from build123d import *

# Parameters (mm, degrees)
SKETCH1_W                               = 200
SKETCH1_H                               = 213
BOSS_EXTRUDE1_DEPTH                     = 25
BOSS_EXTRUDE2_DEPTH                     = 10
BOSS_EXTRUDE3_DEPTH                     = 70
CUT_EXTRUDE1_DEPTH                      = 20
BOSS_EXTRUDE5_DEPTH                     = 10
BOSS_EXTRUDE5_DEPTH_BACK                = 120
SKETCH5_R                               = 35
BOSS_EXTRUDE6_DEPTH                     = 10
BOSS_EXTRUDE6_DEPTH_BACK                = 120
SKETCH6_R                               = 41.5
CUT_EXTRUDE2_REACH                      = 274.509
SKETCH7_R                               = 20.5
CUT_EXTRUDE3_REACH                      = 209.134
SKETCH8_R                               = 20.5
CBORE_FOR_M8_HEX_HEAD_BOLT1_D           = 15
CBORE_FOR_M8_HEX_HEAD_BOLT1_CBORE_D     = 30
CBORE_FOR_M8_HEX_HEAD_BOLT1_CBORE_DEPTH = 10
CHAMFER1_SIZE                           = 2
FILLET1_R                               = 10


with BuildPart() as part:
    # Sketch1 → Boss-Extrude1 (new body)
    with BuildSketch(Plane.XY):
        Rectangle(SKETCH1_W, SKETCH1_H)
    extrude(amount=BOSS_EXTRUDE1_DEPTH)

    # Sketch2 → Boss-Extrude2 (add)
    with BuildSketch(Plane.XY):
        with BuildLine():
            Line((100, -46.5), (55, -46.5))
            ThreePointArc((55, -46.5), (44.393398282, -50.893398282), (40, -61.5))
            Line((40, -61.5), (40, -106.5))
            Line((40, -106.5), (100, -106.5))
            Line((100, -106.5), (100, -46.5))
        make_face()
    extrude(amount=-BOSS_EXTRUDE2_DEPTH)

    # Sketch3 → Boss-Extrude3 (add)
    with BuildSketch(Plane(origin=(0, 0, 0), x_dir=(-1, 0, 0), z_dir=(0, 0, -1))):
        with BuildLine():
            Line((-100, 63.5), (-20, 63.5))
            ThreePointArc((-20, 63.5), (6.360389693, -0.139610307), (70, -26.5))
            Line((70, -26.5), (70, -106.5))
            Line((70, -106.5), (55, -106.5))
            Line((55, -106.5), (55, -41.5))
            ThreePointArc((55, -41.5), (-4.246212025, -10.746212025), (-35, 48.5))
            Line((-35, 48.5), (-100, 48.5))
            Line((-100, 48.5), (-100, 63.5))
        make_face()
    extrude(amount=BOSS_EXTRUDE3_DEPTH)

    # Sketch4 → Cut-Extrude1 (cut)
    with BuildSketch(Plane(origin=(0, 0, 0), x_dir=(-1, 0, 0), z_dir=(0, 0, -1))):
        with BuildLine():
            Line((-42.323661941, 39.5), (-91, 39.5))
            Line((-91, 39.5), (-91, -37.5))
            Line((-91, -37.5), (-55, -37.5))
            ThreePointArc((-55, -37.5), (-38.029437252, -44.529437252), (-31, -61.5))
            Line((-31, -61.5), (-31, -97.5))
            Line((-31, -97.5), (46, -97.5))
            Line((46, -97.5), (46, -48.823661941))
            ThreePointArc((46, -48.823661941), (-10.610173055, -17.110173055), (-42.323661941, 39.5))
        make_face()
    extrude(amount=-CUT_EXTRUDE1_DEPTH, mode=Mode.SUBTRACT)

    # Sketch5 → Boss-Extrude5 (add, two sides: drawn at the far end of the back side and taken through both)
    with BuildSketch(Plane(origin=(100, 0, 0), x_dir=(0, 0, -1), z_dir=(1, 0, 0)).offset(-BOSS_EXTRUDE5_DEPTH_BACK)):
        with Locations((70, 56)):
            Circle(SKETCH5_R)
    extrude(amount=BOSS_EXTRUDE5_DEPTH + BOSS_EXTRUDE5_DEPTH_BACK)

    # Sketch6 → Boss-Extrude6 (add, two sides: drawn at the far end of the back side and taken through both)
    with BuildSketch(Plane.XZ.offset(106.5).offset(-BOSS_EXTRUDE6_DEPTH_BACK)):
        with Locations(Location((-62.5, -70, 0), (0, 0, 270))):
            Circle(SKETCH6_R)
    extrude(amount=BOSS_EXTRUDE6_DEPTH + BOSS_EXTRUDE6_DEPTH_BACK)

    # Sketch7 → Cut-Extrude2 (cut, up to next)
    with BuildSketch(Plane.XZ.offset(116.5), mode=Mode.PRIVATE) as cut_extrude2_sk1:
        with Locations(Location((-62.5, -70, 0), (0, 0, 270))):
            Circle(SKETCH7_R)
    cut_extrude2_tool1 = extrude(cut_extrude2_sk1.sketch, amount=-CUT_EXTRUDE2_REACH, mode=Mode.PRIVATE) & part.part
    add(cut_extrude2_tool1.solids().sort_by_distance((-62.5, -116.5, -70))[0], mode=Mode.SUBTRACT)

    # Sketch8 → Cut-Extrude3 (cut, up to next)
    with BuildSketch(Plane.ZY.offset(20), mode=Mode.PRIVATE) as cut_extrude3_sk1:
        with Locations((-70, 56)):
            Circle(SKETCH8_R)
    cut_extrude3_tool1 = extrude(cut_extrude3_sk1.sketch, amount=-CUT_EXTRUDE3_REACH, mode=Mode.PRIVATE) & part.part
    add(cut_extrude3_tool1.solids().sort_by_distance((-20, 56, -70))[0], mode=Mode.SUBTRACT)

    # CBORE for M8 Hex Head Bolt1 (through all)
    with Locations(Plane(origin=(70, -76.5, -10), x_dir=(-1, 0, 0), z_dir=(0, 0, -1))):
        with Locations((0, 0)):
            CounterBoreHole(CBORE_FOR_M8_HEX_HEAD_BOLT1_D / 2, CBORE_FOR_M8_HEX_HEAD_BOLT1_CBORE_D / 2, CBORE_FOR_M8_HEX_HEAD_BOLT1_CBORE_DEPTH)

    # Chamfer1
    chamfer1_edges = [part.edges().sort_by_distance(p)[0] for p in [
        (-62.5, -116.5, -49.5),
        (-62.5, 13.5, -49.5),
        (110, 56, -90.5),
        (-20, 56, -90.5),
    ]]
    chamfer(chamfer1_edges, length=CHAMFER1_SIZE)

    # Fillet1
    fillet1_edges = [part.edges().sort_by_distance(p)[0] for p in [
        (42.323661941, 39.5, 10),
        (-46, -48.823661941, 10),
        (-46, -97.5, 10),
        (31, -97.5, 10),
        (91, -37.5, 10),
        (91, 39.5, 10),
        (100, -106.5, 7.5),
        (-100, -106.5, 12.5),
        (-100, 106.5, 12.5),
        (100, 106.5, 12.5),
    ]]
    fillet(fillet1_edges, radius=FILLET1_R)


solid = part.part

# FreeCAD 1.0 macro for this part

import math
import FreeCAD as App
import Part
import Sketcher
from FreeCAD import Vector


def edges_at(feature, points):
    """Names of the edges that pass closest to the given points."""
    edges = feature.Shape.Edges
    near = lambda p: min(range(len(edges)), key=lambda i: edges[i].distToShape(Part.Vertex(*p))[0])
    return sorted({f"Edge{near(p) + 1}" for p in points})

doc = App.newDocument("Part")
body = doc.addObject("PartDesign::Body", "Body")

# Sketch on XY plane
sketch1 = doc.addObject("Sketcher::SketchObject", "Sketch")
body.addObject(sketch1)
sketch1.AttachmentSupport = (doc.XY_Plane, [""])
sketch1.MapMode = "FlatFace"
sketch1.addGeometry(Part.LineSegment(Vector(-100, 106, 0), Vector(-100, -106, 0)), False)
sketch1.addGeometry(Part.LineSegment(Vector(-100, -106, 0), Vector(100, -106, 0)), False)
sketch1.addGeometry(Part.LineSegment(Vector(100, -106, 0), Vector(100, 106, 0)), False)
sketch1.addGeometry(Part.LineSegment(Vector(100, 106, 0), Vector(-100, 106, 0)), False)
sketch1.addConstraint(Sketcher.Constraint("Coincident", 0, 2, 1, 1))
sketch1.addConstraint(Sketcher.Constraint("Coincident", 1, 2, 2, 1))
sketch1.addConstraint(Sketcher.Constraint("Coincident", 2, 2, 3, 1))
sketch1.addConstraint(Sketcher.Constraint("Coincident", 3, 2, 0, 1))
sketch1.addConstraint(Sketcher.Constraint("Vertical", 0))
sketch1.addConstraint(Sketcher.Constraint("Horizontal", 1))
sketch1.addConstraint(Sketcher.Constraint("Vertical", 2))
sketch1.addConstraint(Sketcher.Constraint("Horizontal", 3))
sketch1.addConstraint(Sketcher.Constraint("Symmetric", 0, 2, 2, 2, -1, 1))
sketch1.addConstraint(Sketcher.Constraint("DistanceX", 1, 1, 1, 2, 200.0))
sketch1.addConstraint(Sketcher.Constraint("DistanceY", 0, 2, 0, 1, 213.0))
pad1 = doc.addObject("PartDesign::Pad", "Pad")
body.addObject(pad1)
pad1.Profile = sketch1
pad1.Length = 25

# Sketch on XY plane
sketch2 = doc.addObject("Sketcher::SketchObject", "Sketch001")
body.addObject(sketch2)
sketch2.AttachmentSupport = (doc.XY_Plane, [""])
sketch2.MapMode = "FlatFace"
sketch2.addGeometry(Part.LineSegment(Vector(100, -46, 0), Vector(55, -46, 0)), False)
sketch2.addGeometry(Part.ArcOfCircle(Part.Circle(Vector(55, -61, 0), Vector(0, 0, 1), 15), math.radians(90), math.radians(180)), False)
sketch2.addGeometry(Part.LineSegment(Vector(40, -62, 0), Vector(40, -106, 0)), False)
sketch2.addGeometry(Part.LineSegment(Vector(40, -106, 0), Vector(100, -106, 0)), False)
sketch2.addGeometry(Part.LineSegment(Vector(100, -106, 0), Vector(100, -46, 0)), False)
sketch2.addConstraint(Sketcher.Constraint("Tangent", 0, 2, 1, 1))
sketch2.addConstraint(Sketcher.Constraint("Tangent", 1, 2, 2, 1))
sketch2.addConstraint(Sketcher.Constraint("Coincident", 2, 2, 3, 1))
sketch2.addConstraint(Sketcher.Constraint("Coincident", 3, 2, 4, 1))
sketch2.addConstraint(Sketcher.Constraint("Coincident", 4, 2, 0, 1))
sketch2.addConstraint(Sketcher.Constraint("Horizontal", 0))
sketch2.addConstraint(Sketcher.Constraint("Vertical", 2))
sketch2.addConstraint(Sketcher.Constraint("Horizontal", 3))
sketch2.addConstraint(Sketcher.Constraint("Vertical", 4))
sketch2.addConstraint(Sketcher.Constraint("Equal", 0, 2))
sketch2.addConstraint(Sketcher.Constraint("Radius", 1, 15.0))
sketch2.addConstraint(Sketcher.Constraint("DistanceX", 0, 2, 0, 1, 45.0))
sketch2.addConstraint(Sketcher.Constraint("DistanceX", -1, 1, 1, 3, 55.0))
sketch2.addConstraint(Sketcher.Constraint("DistanceY", 1, 3, -1, 1, 61.5))
pad2 = doc.addObject("PartDesign::Pad", "Pad001")
body.addObject(pad2)
pad2.Profile = sketch2
pad2.Length = 10
pad2.Reversed = True

# Sketch on XY plane
sketch3 = doc.addObject("Sketcher::SketchObject", "Sketch002")
body.addObject(sketch3)
sketch3.AttachmentSupport = (doc.XY_Plane, [""])
sketch3.MapMode = "FlatFace"
sketch3.addGeometry(Part.LineSegment(Vector(20, 64, 0), Vector(100, 64, 0)), False)
sketch3.addGeometry(Part.LineSegment(Vector(100, 64, 0), Vector(100, 48, 0)), False)
sketch3.addGeometry(Part.LineSegment(Vector(100, 48, 0), Vector(35, 48, 0)), False)
sketch3.addGeometry(Part.ArcOfCircle(Part.Circle(Vector(-74, 67, 0), Vector(0, 0, 1), 111), math.radians(-80), math.radians(-10)), False)
sketch3.addGeometry(Part.LineSegment(Vector(-55, -42, 0), Vector(-55, -106, 0)), False)
sketch3.addGeometry(Part.LineSegment(Vector(-55, -106, 0), Vector(-70, -106, 0)), False)
sketch3.addGeometry(Part.LineSegment(Vector(-70, -106, 0), Vector(-70, -26, 0)), False)
sketch3.addGeometry(Part.ArcOfCircle(Part.Circle(Vector(-70, 63, 0), Vector(0, 0, 1), 90), math.radians(-90), math.radians(0)), False)
sketch3.addConstraint(Sketcher.Constraint("Coincident", 0, 2, 1, 1))
sketch3.addConstraint(Sketcher.Constraint("Coincident", 1, 2, 2, 1))
sketch3.addConstraint(Sketcher.Constraint("Coincident", 2, 2, 3, 2))
sketch3.addConstraint(Sketcher.Constraint("Coincident", 3, 1, 4, 1))
sketch3.addConstraint(Sketcher.Constraint("Coincident", 4, 2, 5, 1))
sketch3.addConstraint(Sketcher.Constraint("Coincident", 5, 2, 6, 1))
sketch3.addConstraint(Sketcher.Constraint("Coincident", 6, 2, 7, 1))
sketch3.addConstraint(Sketcher.Constraint("Coincident", 7, 2, 0, 1))
sketch3.addConstraint(Sketcher.Constraint("Horizontal", 0))
sketch3.addConstraint(Sketcher.Constraint("Vertical", 1))
sketch3.addConstraint(Sketcher.Constraint("Horizontal", 2))
sketch3.addConstraint(Sketcher.Constraint("Vertical", 4))
sketch3.addConstraint(Sketcher.Constraint("Horizontal", 5))
sketch3.addConstraint(Sketcher.Constraint("Vertical", 6))
sketch3.addConstraint(Sketcher.Constraint("Horizontal", 7, 3, 0, 2))
sketch3.addConstraint(Sketcher.Constraint("Vertical", 7, 3, 5, 2))
sketch3.addConstraint(Sketcher.Constraint("Equal", 5, 1))
sketch3.addConstraint(Sketcher.Constraint("Equal", 2, 4))
sketch3.addConstraint(Sketcher.Constraint("Equal", 0, 6))
sketch3.addConstraint(Sketcher.Constraint("Radius", 7, 90.0))
sketch3.addConstraint(Sketcher.Constraint("DistanceX", 0, 1, 0, 2, 80.0))
sketch3.addConstraint(Sketcher.Constraint("DistanceX", 2, 2, 2, 1, 65.0))
sketch3.addConstraint(Sketcher.Constraint("DistanceX", 5, 2, 5, 1, 15.0))
sketch3.addConstraint(Sketcher.Constraint("DistanceX", 7, 3, -1, 1, 70.0))
sketch3.addConstraint(Sketcher.Constraint("DistanceY", -1, 1, 7, 3, 63.5))
sketch3.addConstraint(Sketcher.Constraint("Radius", 3, 110.583906))
pad3 = doc.addObject("PartDesign::Pad", "Pad002")
body.addObject(pad3)
pad3.Profile = sketch3
pad3.Length = 70
pad3.Reversed = True

# Sketch on XY plane
sketch4 = doc.addObject("Sketcher::SketchObject", "Sketch003")
body.addObject(sketch4)
sketch4.AttachmentSupport = (doc.XY_Plane, [""])
sketch4.MapMode = "FlatFace"
sketch4.addGeometry(Part.LineSegment(Vector(42, 40, 0), Vector(91, 40, 0)), False)
sketch4.addGeometry(Part.LineSegment(Vector(91, 40, 0), Vector(91, -38, 0)), False)
sketch4.addGeometry(Part.LineSegment(Vector(91, -38, 0), Vector(55, -38, 0)), False)
sketch4.addGeometry(Part.ArcOfCircle(Part.Circle(Vector(55, -62, 0), Vector(0, 0, 1), 24), math.radians(90), math.radians(180)), False)
sketch4.addGeometry(Part.LineSegment(Vector(31, -62, 0), Vector(31, -98, 0)), False)
sketch4.addGeometry(Part.LineSegment(Vector(31, -98, 0), Vector(-46, -98, 0)), False)
sketch4.addGeometry(Part.LineSegment(Vector(-46, -98, 0), Vector(-46, -49, 0)), False)
sketch4.addGeometry(Part.ArcOfCircle(Part.Circle(Vector(-74, 67, 0), Vector(0, 0, 1), 120), math.radians(-76), math.radians(-14)), False)
sketch4.addConstraint(Sketcher.Constraint("Coincident", 0, 2, 1, 1))
sketch4.addConstraint(Sketcher.Constraint("Coincident", 1, 2, 2, 1))
sketch4.addConstraint(Sketcher.Constraint("Tangent", 2, 2, 3, 1))
sketch4.addConstraint(Sketcher.Constraint("Tangent", 3, 2, 4, 1))
sketch4.addConstraint(Sketcher.Constraint("Coincident", 4, 2, 5, 1))
sketch4.addConstraint(Sketcher.Constraint("Coincident", 5, 2, 6, 1))
sketch4.addConstraint(Sketcher.Constraint("Coincident", 6, 2, 7, 1))
sketch4.addConstraint(Sketcher.Constraint("Coincident", 7, 2, 0, 1))
sketch4.addConstraint(Sketcher.Constraint("Horizontal", 0))
sketch4.addConstraint(Sketcher.Constraint("Vertical", 1))
sketch4.addConstraint(Sketcher.Constraint("Horizontal", 2))
sketch4.addConstraint(Sketcher.Constraint("Vertical", 4))
sketch4.addConstraint(Sketcher.Constraint("Horizontal", 5))
sketch4.addConstraint(Sketcher.Constraint("Vertical", 6))
sketch4.addConstraint(Sketcher.Constraint("Equal", 5, 1))
sketch4.addConstraint(Sketcher.Constraint("Equal", 2, 4))
sketch4.addConstraint(Sketcher.Constraint("Equal", 0, 6))
sketch4.addConstraint(Sketcher.Constraint("Radius", 3, 24.0))
sketch4.addConstraint(Sketcher.Constraint("DistanceX", 2, 2, 2, 1, 36.0))
sketch4.addConstraint(Sketcher.Constraint("DistanceX", 5, 2, 5, 1, 77.0))
sketch4.addConstraint(Sketcher.Constraint("DistanceX", -1, 1, 3, 3, 55.0))
sketch4.addConstraint(Sketcher.Constraint("DistanceY", 3, 3, -1, 1, 61.5))
sketch4.addConstraint(Sketcher.Constraint("Radius", 7, 119.583906))
sketch4.addConstraint(Sketcher.Constraint("DistanceX", 0, 1, 0, 2, 48.676338))
pocket1 = doc.addObject("PartDesign::Pocket", "Pocket")
body.addObject(pocket1)
pocket1.Profile = sketch4
pocket1.Length = 20
pocket1.Reversed = True

# Sketch on YZ plane
sketch5 = doc.addObject("Sketcher::SketchObject", "Sketch004")
body.addObject(sketch5)
sketch5.AttachmentSupport = (doc.YZ_Plane, [""])
sketch5.MapMode = "FlatFace"
sketch5.AttachmentOffset = App.Placement(Vector(0, 0, 100), App.Rotation())
sketch5.addGeometry(Part.Circle(Vector(56, -70, 0), Vector(0, 0, 1), 35), False)
sketch5.addConstraint(Sketcher.Constraint("Diameter", 0, 70.0))
sketch5.addConstraint(Sketcher.Constraint("DistanceX", -1, 1, 0, 3, 56.0))
sketch5.addConstraint(Sketcher.Constraint("DistanceY", 0, 3, -1, 1, 70.0))
pad4 = doc.addObject("PartDesign::Pad", "Pad003")
body.addObject(pad4)
pad4.Profile = sketch5
pad4.Type = "TwoLengths"
pad4.Length = 10
pad4.Length2 = 120

# Sketch on XZ plane
sketch6 = doc.addObject("Sketcher::SketchObject", "Sketch005")
body.addObject(sketch6)
sketch6.AttachmentSupport = (doc.XZ_Plane, [""])
sketch6.MapMode = "FlatFace"
sketch6.AttachmentOffset = App.Placement(Vector(0, 0, 106.5), App.Rotation())
sketch6.addGeometry(Part.Circle(Vector(-62, -70, 0), Vector(0, 0, 1), 42), False)
sketch6.addConstraint(Sketcher.Constraint("Diameter", 0, 83.0))
sketch6.addConstraint(Sketcher.Constraint("DistanceY", 0, 3, -1, 1, 70.0))
sketch6.addConstraint(Sketcher.Constraint("DistanceX", 0, 3, -1, 1, 62.5))
pad5 = doc.addObject("PartDesign::Pad", "Pad004")
body.addObject(pad5)
pad5.Profile = sketch6
pad5.Type = "TwoLengths"
pad5.Length = 10
pad5.Length2 = 120

# Sketch on XZ plane
sketch7 = doc.addObject("Sketcher::SketchObject", "Sketch006")
body.addObject(sketch7)
sketch7.AttachmentSupport = (doc.XZ_Plane, [""])
sketch7.MapMode = "FlatFace"
sketch7.AttachmentOffset = App.Placement(Vector(0, 0, 116.5), App.Rotation())
sketch7.addGeometry(Part.Circle(Vector(-62, -70, 0), Vector(0, 0, 1), 20), False)
sketch7.addConstraint(Sketcher.Constraint("Diameter", 0, 41.0))
sketch7.addConstraint(Sketcher.Constraint("DistanceY", 0, 3, -1, 1, 70.0))
sketch7.addConstraint(Sketcher.Constraint("DistanceX", 0, 3, -1, 1, 62.5))
pocket2 = doc.addObject("PartDesign::Pocket", "Pocket001")
body.addObject(pocket2)
pocket2.Profile = sketch7
pocket2.Type = "UpToFirst"

# Sketch on YZ plane
sketch8 = doc.addObject("Sketcher::SketchObject", "Sketch007")
body.addObject(sketch8)
sketch8.AttachmentSupport = (doc.YZ_Plane, [""])
sketch8.MapMode = "FlatFace"
sketch8.AttachmentOffset = App.Placement(Vector(0, 0, -20), App.Rotation())
sketch8.addGeometry(Part.Circle(Vector(56, -70, 0), Vector(0, 0, 1), 20), False)
sketch8.addConstraint(Sketcher.Constraint("Diameter", 0, 41.0))
sketch8.addConstraint(Sketcher.Constraint("DistanceX", -1, 1, 0, 3, 56.0))
sketch8.addConstraint(Sketcher.Constraint("DistanceY", 0, 3, -1, 1, 70.0))
pocket3 = doc.addObject("PartDesign::Pocket", "Pocket002")
body.addObject(pocket3)
pocket3.Profile = sketch8
pocket3.Type = "UpToFirst"
pocket3.Reversed = True

# Sketch on XY plane
sketch9 = doc.addObject("Sketcher::SketchObject", "Sketch008")
body.addObject(sketch9)
sketch9.AttachmentSupport = (doc.XY_Plane, [""])
sketch9.MapMode = "FlatFace"
sketch9.AttachmentOffset = App.Placement(Vector(0, 0, -10), App.Rotation())
sketch9.addGeometry(Part.Circle(Vector(70, -76, 0), Vector(0, 0, 1), 8), False)
sketch9.addConstraint(Sketcher.Constraint("Diameter", 0, 15.0))
sketch9.addConstraint(Sketcher.Constraint("DistanceX", -1, 1, 0, 3, 70.0))
sketch9.addConstraint(Sketcher.Constraint("DistanceY", 0, 3, -1, 1, 76.5))
doc.recompute()
hole = doc.addObject("PartDesign::Hole", "Hole")
body.addObject(hole)
hole.Profile = sketch9
hole.ThreadType = "None"
hole.Diameter = 15
hole.DepthType = "ThroughAll"
hole.HoleCutType = "Counterbore"
hole.HoleCutDiameter = 30
hole.HoleCutDepth = 10
hole.Reversed = True
doc.recompute()

chamfer = doc.addObject("PartDesign::Chamfer", "Chamfer")
body.addObject(chamfer)
chamfer.Base = (hole, edges_at(hole, [
    (-62.5, -116.5, -49.5),
    (-62.5, 13.5, -49.5),
    (110, 56, -90.5),
    (-20, 56, -90.5),
]))
chamfer.Size = 2
doc.recompute()

fillet = doc.addObject("PartDesign::Fillet", "Fillet")
body.addObject(fillet)
fillet.Base = (chamfer, edges_at(chamfer, [
    (42.324, 39.5, 10),
    (-46, -48.824, 10),
    (-46, -97.5, 10),
    (31, -97.5, 10),
    (91, -37.5, 10),
    (91, 39.5, 10),
    (100, -106.5, 7.5),
    (-100, -106.5, 12.5),
    (-100, 106.5, 12.5),
    (100, 106.5, 12.5),
]))
fillet.Radius = 10

doc.recompute()
